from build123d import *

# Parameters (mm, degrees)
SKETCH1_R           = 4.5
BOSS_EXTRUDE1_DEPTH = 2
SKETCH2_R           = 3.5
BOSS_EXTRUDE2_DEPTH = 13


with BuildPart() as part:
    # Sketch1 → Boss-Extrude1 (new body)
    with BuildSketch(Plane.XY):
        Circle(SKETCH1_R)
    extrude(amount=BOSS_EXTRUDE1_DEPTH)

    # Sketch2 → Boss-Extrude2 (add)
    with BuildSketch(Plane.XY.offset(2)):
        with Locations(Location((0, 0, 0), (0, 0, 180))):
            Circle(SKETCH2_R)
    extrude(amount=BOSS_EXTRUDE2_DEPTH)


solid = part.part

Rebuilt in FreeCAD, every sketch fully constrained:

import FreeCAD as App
import Part
import Sketcher
from FreeCAD import Vector
Q = App.Units.Quantity

doc = App.newDocument("Part")
body = doc.addObject("PartDesign::Body", "Body")

# Sketch on XY plane
sketch1 = body.newObject("Sketcher::SketchObject", "Sketch")
sketch1.AttachmentSupport = (doc.getObject("XY_Plane"), [""])
sketch1.MapMode = "FlatFace"
sketch1.addGeometry(Part.Circle(Vector(0, 0, 0), Vector(0, 0, 1), 4.5), False)
sketch1.addConstraint([
    Sketcher.Constraint("Coincident", 0, 3, -1, 1),
    Sketcher.Constraint("Diameter", 0, Q("9 mm")),
])
pad1 = body.newObject("PartDesign::Pad", "Pad")
pad1.Profile = sketch1
pad1.Length = 2

# Sketch on XY plane
sketch2 = body.newObject("Sketcher::SketchObject", "Sketch001")
sketch2.AttachmentSupport = (doc.getObject("XY_Plane"), [""])
sketch2.MapMode = "FlatFace"
sketch2.AttachmentOffset = App.Placement(Vector(0, 0, 2), App.Rotation())
sketch2.addGeometry(Part.Circle(Vector(0, 0, 0), Vector(0, 0, 1), 3.5), False)
sketch2.addConstraint([
    Sketcher.Constraint("Coincident", 0, 3, -1, 1),
    Sketcher.Constraint("Diameter", 0, Q("7 mm")),
])
pad2 = body.newObject("PartDesign::Pad", "Pad001")
pad2.Profile = sketch2
pad2.Length = 13

doc.recompute()
